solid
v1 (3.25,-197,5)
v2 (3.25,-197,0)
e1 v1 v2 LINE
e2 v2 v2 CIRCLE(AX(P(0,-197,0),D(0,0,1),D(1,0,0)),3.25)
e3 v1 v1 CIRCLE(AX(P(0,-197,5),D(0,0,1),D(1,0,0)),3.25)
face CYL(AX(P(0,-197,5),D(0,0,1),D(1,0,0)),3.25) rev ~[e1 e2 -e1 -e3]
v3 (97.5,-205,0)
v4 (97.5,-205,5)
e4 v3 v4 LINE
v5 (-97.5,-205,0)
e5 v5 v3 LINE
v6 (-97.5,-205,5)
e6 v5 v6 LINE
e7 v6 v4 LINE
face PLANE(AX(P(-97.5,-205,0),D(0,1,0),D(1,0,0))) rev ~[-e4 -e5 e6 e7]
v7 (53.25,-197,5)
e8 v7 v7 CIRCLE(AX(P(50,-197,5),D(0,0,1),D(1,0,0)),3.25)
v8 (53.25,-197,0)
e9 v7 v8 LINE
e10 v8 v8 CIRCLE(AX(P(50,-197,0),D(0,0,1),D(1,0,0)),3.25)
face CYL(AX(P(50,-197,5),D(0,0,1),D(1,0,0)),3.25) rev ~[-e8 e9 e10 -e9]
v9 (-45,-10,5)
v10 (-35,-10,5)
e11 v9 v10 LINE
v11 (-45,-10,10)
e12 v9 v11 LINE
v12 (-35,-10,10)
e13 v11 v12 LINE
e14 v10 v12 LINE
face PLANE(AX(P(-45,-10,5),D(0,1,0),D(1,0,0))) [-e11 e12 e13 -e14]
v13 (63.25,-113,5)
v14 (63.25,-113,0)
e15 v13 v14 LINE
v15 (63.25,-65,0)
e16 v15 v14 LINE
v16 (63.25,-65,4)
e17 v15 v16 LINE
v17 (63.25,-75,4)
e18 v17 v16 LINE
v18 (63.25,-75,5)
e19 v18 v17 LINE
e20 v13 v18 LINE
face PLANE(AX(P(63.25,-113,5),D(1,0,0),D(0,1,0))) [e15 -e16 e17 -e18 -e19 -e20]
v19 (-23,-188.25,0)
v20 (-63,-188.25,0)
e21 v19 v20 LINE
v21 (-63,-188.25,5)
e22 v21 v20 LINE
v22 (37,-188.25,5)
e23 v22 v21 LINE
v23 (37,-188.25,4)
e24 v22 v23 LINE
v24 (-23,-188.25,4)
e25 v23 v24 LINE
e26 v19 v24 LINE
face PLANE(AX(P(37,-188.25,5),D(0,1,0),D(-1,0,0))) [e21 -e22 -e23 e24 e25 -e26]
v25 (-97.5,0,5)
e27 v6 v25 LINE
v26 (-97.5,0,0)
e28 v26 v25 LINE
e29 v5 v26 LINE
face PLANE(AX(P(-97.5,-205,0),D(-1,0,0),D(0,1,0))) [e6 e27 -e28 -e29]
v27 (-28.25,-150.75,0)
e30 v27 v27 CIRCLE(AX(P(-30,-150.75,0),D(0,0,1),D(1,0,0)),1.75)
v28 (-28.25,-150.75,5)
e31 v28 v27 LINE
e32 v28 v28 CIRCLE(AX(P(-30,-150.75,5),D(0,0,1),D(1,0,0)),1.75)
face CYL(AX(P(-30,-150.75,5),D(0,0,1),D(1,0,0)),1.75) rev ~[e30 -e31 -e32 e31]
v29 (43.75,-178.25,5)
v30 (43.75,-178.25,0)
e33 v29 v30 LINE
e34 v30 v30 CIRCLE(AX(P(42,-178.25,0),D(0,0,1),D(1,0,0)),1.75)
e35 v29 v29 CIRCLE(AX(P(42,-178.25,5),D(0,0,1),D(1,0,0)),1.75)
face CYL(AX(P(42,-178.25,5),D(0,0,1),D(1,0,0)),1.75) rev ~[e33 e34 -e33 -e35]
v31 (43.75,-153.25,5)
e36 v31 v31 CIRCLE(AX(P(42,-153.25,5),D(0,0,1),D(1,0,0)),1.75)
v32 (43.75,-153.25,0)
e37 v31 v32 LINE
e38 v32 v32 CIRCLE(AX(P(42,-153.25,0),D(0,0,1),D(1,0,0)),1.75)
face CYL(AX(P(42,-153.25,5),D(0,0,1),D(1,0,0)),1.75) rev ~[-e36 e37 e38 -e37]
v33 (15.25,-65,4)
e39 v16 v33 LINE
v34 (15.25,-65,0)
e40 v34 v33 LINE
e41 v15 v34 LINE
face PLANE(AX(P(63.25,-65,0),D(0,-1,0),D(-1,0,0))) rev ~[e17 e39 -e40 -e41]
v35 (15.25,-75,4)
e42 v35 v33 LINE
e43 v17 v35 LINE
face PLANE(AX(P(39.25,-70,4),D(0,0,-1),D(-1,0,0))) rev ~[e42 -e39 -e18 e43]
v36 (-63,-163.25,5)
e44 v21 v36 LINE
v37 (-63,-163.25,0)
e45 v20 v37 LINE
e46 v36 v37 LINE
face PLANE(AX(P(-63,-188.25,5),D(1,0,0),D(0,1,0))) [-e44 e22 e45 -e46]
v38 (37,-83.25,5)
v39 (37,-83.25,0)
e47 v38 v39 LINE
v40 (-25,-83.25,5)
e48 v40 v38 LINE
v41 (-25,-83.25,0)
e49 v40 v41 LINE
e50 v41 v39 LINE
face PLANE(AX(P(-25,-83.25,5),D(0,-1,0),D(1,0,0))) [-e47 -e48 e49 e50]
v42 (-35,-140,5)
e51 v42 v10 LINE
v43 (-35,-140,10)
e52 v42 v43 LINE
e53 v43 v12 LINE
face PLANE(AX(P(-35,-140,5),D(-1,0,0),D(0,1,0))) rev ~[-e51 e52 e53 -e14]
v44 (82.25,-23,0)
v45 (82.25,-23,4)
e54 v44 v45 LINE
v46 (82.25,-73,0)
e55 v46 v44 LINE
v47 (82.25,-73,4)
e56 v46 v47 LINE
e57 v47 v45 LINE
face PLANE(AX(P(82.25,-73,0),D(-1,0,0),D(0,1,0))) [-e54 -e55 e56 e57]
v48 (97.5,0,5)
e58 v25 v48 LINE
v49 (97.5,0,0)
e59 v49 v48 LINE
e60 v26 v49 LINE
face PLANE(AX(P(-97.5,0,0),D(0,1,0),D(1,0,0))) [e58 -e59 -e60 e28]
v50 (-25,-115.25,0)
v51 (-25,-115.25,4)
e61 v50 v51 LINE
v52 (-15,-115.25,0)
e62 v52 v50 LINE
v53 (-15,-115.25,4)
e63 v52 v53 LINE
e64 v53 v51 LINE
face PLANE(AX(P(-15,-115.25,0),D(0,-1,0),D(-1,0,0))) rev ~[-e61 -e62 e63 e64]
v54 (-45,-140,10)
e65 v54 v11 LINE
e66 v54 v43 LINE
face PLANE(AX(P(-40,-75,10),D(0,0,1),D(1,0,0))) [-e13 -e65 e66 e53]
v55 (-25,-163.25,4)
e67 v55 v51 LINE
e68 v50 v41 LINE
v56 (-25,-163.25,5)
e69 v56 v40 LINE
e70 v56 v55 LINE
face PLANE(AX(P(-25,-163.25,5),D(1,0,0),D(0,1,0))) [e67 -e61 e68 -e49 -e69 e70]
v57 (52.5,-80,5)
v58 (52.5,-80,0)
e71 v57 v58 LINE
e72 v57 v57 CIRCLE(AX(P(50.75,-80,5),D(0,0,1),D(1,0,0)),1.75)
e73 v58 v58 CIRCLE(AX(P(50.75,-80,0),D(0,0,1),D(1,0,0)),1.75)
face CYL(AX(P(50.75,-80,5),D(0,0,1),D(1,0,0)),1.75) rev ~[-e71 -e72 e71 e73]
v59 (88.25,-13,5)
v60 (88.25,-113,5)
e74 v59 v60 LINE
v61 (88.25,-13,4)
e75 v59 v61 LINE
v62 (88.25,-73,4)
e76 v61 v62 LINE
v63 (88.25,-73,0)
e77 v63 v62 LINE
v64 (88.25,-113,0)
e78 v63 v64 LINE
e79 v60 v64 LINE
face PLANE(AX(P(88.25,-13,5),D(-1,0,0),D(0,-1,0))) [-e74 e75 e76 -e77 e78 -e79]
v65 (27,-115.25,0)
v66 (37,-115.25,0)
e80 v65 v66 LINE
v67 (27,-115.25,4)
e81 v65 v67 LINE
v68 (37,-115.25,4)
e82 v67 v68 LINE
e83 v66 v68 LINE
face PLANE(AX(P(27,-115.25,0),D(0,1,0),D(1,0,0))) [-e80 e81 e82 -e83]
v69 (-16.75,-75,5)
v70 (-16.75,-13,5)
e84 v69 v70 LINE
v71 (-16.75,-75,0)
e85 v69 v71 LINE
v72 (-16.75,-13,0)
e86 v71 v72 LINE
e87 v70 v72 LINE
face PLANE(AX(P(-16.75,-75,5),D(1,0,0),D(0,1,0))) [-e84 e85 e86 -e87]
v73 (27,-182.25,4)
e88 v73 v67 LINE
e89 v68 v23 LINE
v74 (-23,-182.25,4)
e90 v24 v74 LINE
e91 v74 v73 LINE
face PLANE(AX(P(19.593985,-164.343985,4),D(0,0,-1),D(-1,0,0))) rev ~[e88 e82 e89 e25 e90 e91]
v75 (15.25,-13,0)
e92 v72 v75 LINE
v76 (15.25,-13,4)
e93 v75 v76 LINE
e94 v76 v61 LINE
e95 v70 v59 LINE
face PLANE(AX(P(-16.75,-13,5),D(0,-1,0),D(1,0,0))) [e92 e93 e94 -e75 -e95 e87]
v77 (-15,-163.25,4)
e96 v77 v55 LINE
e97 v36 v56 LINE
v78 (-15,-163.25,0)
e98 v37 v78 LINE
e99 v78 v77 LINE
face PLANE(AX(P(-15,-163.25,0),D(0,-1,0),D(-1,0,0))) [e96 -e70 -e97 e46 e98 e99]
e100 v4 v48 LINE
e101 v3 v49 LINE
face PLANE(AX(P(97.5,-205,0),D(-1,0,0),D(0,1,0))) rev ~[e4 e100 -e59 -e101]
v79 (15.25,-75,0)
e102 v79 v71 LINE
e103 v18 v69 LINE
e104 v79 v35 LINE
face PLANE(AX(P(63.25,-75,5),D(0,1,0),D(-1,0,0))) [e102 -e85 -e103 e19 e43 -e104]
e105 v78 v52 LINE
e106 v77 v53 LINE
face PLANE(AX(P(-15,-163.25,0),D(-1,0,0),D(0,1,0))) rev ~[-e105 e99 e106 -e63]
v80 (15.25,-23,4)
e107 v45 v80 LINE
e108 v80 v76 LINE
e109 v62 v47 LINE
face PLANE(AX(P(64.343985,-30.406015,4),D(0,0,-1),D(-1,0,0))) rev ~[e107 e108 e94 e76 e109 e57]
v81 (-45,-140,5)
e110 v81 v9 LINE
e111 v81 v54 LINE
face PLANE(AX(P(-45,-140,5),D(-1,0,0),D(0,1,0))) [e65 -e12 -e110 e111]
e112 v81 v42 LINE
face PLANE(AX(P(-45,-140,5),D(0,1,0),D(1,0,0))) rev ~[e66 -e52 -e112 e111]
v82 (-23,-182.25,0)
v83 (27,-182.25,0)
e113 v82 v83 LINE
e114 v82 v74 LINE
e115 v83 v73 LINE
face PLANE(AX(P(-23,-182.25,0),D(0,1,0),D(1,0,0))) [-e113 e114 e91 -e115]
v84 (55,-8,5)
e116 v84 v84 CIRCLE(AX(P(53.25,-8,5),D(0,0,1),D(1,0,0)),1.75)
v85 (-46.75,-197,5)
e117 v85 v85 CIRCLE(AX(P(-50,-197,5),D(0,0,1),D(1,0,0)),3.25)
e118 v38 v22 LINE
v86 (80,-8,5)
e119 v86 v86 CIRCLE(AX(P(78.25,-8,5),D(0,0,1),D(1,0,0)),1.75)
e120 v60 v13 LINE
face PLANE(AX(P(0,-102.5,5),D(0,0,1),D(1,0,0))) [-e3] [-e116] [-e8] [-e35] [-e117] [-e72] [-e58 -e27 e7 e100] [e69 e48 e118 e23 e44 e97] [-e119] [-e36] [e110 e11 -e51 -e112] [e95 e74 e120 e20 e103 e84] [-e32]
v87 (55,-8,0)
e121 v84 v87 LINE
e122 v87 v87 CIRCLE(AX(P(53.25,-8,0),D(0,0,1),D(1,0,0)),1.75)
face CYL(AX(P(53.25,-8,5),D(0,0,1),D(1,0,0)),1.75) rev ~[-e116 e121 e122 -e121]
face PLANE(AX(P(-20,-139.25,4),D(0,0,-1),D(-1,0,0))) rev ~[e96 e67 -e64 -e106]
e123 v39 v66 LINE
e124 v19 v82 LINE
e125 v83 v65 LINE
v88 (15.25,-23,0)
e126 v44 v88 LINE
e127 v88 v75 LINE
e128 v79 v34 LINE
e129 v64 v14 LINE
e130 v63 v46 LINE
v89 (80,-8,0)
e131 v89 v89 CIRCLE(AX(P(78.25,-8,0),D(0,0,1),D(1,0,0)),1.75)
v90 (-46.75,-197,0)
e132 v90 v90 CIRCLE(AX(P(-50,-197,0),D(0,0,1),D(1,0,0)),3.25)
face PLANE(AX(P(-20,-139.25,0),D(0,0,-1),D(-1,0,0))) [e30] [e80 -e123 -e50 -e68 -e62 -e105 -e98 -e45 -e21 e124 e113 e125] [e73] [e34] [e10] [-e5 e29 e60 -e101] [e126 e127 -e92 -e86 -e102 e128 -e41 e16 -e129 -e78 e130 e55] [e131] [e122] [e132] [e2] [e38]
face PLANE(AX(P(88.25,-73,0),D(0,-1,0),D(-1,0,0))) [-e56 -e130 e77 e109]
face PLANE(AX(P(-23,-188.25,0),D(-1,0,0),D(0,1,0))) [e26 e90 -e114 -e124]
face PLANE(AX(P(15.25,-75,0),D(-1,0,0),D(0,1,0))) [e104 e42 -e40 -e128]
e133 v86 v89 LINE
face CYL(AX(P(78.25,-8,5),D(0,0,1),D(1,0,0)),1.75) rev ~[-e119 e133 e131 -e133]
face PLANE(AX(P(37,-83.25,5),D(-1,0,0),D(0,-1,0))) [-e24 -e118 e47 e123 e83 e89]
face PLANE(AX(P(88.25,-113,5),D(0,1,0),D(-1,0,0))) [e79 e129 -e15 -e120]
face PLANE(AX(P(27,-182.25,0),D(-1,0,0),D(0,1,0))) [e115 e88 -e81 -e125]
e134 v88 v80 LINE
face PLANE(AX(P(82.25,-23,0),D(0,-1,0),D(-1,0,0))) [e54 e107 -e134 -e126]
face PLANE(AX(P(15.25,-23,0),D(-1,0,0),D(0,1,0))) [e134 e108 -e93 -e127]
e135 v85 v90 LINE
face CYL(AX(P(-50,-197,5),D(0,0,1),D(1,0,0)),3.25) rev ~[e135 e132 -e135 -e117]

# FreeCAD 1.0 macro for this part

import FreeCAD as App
import Part
import Sketcher

doc = App.newDocument("Part")
params = doc.addObject("Spreadsheet::Sheet", "Params")
for row, (alias, value) in enumerate([
    ("sketch1_width", "195 mm"),
    ("sketch1_height", "205 mm"),
    ("pad1_length", "5 mm"),
    ("sketch2_width", "62 mm"),
    ("sketch2_width2", "38 mm"),
    ("sketch2_width3", "25 mm"),
    ("sketch2_width4", "105 mm"),
    ("sketch3_width", "10 mm"),
    ("sketch3_width2", "50 mm"),
    ("sketch3_width3", "6 mm"),
    ("sketch3_width4", "67 mm"),
    ("sketch3_width5", "48 mm"),
    ("pad2_length", "4 mm"),
    ("sketch4_diameter", "3.5 mm"),
    ("sketch5_diameter", "6.5 mm"),
    ("sketch6_width", "10 mm"),
    ("sketch6_height", "130 mm"),
    ("pad3_length", "5 mm"),
], start=1):
    params.set(f"A{row}", alias)
    params.set(f"B{row}", "=" + value)
    params.setAlias(f"B{row}", alias)

body = doc.addObject("PartDesign::Body", "Body")

sketch1 = doc.addObject("Sketcher::SketchObject", "Sketch")
body.addObject(sketch1)
sketch1.AttachmentSupport = (doc.XY_Plane, [""])
sketch1.MapMode = "FlatFace"
sketch1.addGeometry([
    Part.LineSegment(App.Vector(-98, 0, 0), App.Vector(-98, -205, 0)),
    Part.LineSegment(App.Vector(-98, -205, 0), App.Vector(98, -205, 0)),
    Part.LineSegment(App.Vector(98, -205, 0), App.Vector(98, 0, 0)),
    Part.LineSegment(App.Vector(98, 0, 0), App.Vector(-98, 0, 0)),
], False)
sketch1.addConstraint([
    Sketcher.Constraint("Coincident", 0, 2, 1, 1),
    Sketcher.Constraint("Coincident", 1, 2, 2, 1),
    Sketcher.Constraint("Coincident", 2, 2, 3, 1),
    Sketcher.Constraint("Coincident", 3, 2, 0, 1),
    Sketcher.Constraint("Vertical", 0),
    Sketcher.Constraint("Horizontal", 1),
    Sketcher.Constraint("Vertical", 2),
    Sketcher.Constraint("Horizontal", 3),
    Sketcher.Constraint("Symmetric", 2, 2, 3, 2, -1, 1),
    Sketcher.Constraint("DistanceX", 1, 1, 1, 2, 195.0),
    Sketcher.Constraint("DistanceY", 0, 2, 0, 1, 205.0),
])
sketch1.setExpression("Constraints[9]", "Params.sketch1_width")
sketch1.setExpression("Constraints[10]", "Params.sketch1_height")
pad1 = doc.addObject("PartDesign::Pad", "Pad")
body.addObject(pad1)
pad1.Profile = sketch1
pad1.setExpression("Length", "Params.pad1_length")

sketch2 = doc.addObject("Sketcher::SketchObject", "Sketch001")
body.addObject(sketch2)
sketch2.AttachmentSupport = (doc.XY_Plane, [""])
sketch2.MapMode = "FlatFace"
sketch2.AttachmentOffset = App.Placement(App.Vector(0, 0, 5), App.Rotation())
sketch2.addGeometry([
    Part.LineSegment(App.Vector(37, -83, 0), App.Vector(-25, -83, 0)),
    Part.LineSegment(App.Vector(-25, -83, 0), App.Vector(-25, -163, 0)),
    Part.LineSegment(App.Vector(-25, -163, 0), App.Vector(-63, -163, 0)),
    Part.LineSegment(App.Vector(-63, -163, 0), App.Vector(-63, -188, 0)),
    Part.LineSegment(App.Vector(-63, -188, 0), App.Vector(37, -188, 0)),
    Part.LineSegment(App.Vector(37, -188, 0), App.Vector(37, -83, 0)),
    Part.LineSegment(App.Vector(63, -113, 0), App.Vector(88, -113, 0)),
    Part.LineSegment(App.Vector(88, -113, 0), App.Vector(88, -13, 0)),
    Part.LineSegment(App.Vector(88, -13, 0), App.Vector(-17, -13, 0)),
    Part.LineSegment(App.Vector(-17, -13, 0), App.Vector(-17, -75, 0)),
    Part.LineSegment(App.Vector(-17, -75, 0), App.Vector(63, -75, 0)),
    Part.LineSegment(App.Vector(63, -75, 0), App.Vector(63, -113, 0)),
], False)
sketch2.addConstraint([
    Sketcher.Constraint("Coincident", 0, 2, 1, 1),
    Sketcher.Constraint("Coincident", 1, 2, 2, 1),
    Sketcher.Constraint("Coincident", 2, 2, 3, 1),
    Sketcher.Constraint("Coincident", 3, 2, 4, 1),
    Sketcher.Constraint("Coincident", 4, 2, 5, 1),
    Sketcher.Constraint("Coincident", 5, 2, 0, 1),
    Sketcher.Constraint("Coincident", 6, 2, 7, 1),
    Sketcher.Constraint("Coincident", 7, 2, 8, 1),
    Sketcher.Constraint("Coincident", 8, 2, 9, 1),
    Sketcher.Constraint("Coincident", 9, 2, 10, 1),
    Sketcher.Constraint("Coincident", 10, 2, 11, 1),
    Sketcher.Constraint("Coincident", 11, 2, 6, 1),
    Sketcher.Constraint("Horizontal", 0),
    Sketcher.Constraint("Vertical", 1),
    Sketcher.Constraint("Horizontal", 2),
    Sketcher.Constraint("Vertical", 3),
    Sketcher.Constraint("Horizontal", 4),
    Sketcher.Constraint("Vertical", 5),
    Sketcher.Constraint("Horizontal", 6),
    Sketcher.Constraint("Vertical", 7),
    Sketcher.Constraint("Horizontal", 8),
    Sketcher.Constraint("Vertical", 9),
    Sketcher.Constraint("Horizontal", 10),
    Sketcher.Constraint("Vertical", 11),
    Sketcher.Constraint("Equal", 10, 1),
    Sketcher.Constraint("Equal", 6, 3),
    Sketcher.Constraint("Equal", 4, 7),
    Sketcher.Constraint("Equal", 0, 9),
    Sketcher.Constraint("DistanceX", 0, 2, 0, 1, 62.0),
    Sketcher.Constraint("DistanceX", 2, 2, 2, 1, 38.0),
    Sketcher.Constraint("DistanceX", 6, 1, 6, 2, 25.0),
    Sketcher.Constraint("DistanceX", 8, 2, 8, 1, 105.0),
    Sketcher.Constraint("DistanceX", 0, 2, -1, 1, 25.0),
    Sketcher.Constraint("DistanceY", 6, 2, -1, 1, 113.0),
    Sketcher.Constraint("DistanceY", 0, 2, -1, 1, 83.25),
    Sketcher.Constraint("DistanceX", -1, 1, 6, 2, 88.25),
])
sketch2.setExpression("Constraints[28]", "Params.sketch2_width")
sketch2.setExpression("Constraints[29]", "Params.sketch2_width2")
sketch2.setExpression("Constraints[30]", "Params.sketch2_width3")
sketch2.setExpression("Constraints[31]", "Params.sketch2_width4")
pocket1 = doc.addObject("PartDesign::Pocket", "Pocket")
body.addObject(pocket1)
pocket1.Profile = sketch2
pocket1.Type = "ThroughAll"

sketch3 = doc.addObject("Sketcher::SketchObject", "Sketch002")
body.addObject(sketch3)
sketch3.AttachmentSupport = (doc.XY_Plane, [""])
sketch3.MapMode = "FlatFace"
sketch3.addGeometry([
    Part.LineSegment(App.Vector(-15, -115, 0), App.Vector(-15, -163, 0)),
    Part.LineSegment(App.Vector(-15, -163, 0), App.Vector(-25, -163, 0)),
    Part.LineSegment(App.Vector(-25, -163, 0), App.Vector(-25, -115, 0)),
    Part.LineSegment(App.Vector(-25, -115, 0), App.Vector(-15, -115, 0)),
    Part.LineSegment(App.Vector(-23, -188, 0), App.Vector(-23, -182, 0)),
    Part.LineSegment(App.Vector(-23, -182, 0), App.Vector(27, -182, 0)),
    Part.LineSegment(App.Vector(27, -182, 0), App.Vector(27, -115, 0)),
    Part.LineSegment(App.Vector(27, -115, 0), App.Vector(37, -115, 0)),
    Part.LineSegment(App.Vector(37, -115, 0), App.Vector(37, -188, 0)),
    Part.LineSegment(App.Vector(37, -188, 0), App.Vector(-23, -188, 0)),
    Part.LineSegment(App.Vector(88, -73, 0), App.Vector(82, -73, 0)),
    Part.LineSegment(App.Vector(82, -73, 0), App.Vector(82, -23, 0)),
    Part.LineSegment(App.Vector(82, -23, 0), App.Vector(15, -23, 0)),
    Part.LineSegment(App.Vector(15, -23, 0), App.Vector(15, -13, 0)),
    Part.LineSegment(App.Vector(15, -13, 0), App.Vector(88, -13, 0)),
    Part.LineSegment(App.Vector(88, -13, 0), App.Vector(88, -73, 0)),
    Part.LineSegment(App.Vector(63, -65, 0), App.Vector(63, -75, 0)),
    Part.LineSegment(App.Vector(63, -75, 0), App.Vector(15, -75, 0)),
    Part.LineSegment(App.Vector(15, -75, 0), App.Vector(15, -65, 0)),
    Part.LineSegment(App.Vector(15, -65, 0), App.Vector(63, -65, 0)),
], False)
sketch3.addConstraint([
    Sketcher.Constraint("Coincident", 0, 2, 1, 1),
    Sketcher.Constraint("Coincident", 1, 2, 2, 1),
    Sketcher.Constraint("Coincident", 2, 2, 3, 1),
    Sketcher.Constraint("Coincident", 3, 2, 0, 1),
    Sketcher.Constraint("Coincident", 4, 2, 5, 1),
    Sketcher.Constraint("Coincident", 5, 2, 6, 1),
    Sketcher.Constraint("Coincident", 6, 2, 7, 1),
    Sketcher.Constraint("Coincident", 7, 2, 8, 1),
    Sketcher.Constraint("Coincident", 8, 2, 9, 1),
    Sketcher.Constraint("Coincident", 9, 2, 4, 1),
    Sketcher.Constraint("Coincident", 10, 2, 11, 1),
    Sketcher.Constraint("Coincident", 11, 2, 12, 1),
    Sketcher.Constraint("Coincident", 12, 2, 13, 1),
    Sketcher.Constraint("Coincident", 13, 2, 14, 1),
    Sketcher.Constraint("Coincident", 14, 2, 15, 1),
    Sketcher.Constraint("Coincident", 15, 2, 10, 1),
    Sketcher.Constraint("Coincident", 16, 2, 17, 1),
    Sketcher.Constraint("Coincident", 17, 2, 18, 1),
    Sketcher.Constraint("Coincident", 18, 2, 19, 1),
    Sketcher.Constraint("Coincident", 19, 2, 16, 1),
    Sketcher.Constraint("Vertical", 0),
    Sketcher.Constraint("Horizontal", 1),
    Sketcher.Constraint("Vertical", 2),
    Sketcher.Constraint("Horizontal", 3),
    Sketcher.Constraint("Vertical", 4),
    Sketcher.Constraint("Horizontal", 5),
    Sketcher.Constraint("Vertical", 6),
    Sketcher.Constraint("Horizontal", 7),
    Sketcher.Constraint("Vertical", 8),
    Sketcher.Constraint("Horizontal", 9),
    Sketcher.Constraint("Horizontal", 10),
    Sketcher.Constraint("Vertical", 11),
    Sketcher.Constraint("Horizontal", 12),
    Sketcher.Constraint("Vertical", 13),
    Sketcher.Constraint("Horizontal", 14),
    Sketcher.Constraint("Vertical", 15),
    Sketcher.Constraint("Vertical", 16),
    Sketcher.Constraint("Horizontal", 17),
    Sketcher.Constraint("Vertical", 18),
    Sketcher.Constraint("Horizontal", 19),
    Sketcher.Constraint("Horizontal", 3, 2, 6, 2),
    Sketcher.Constraint("Vertical", 13, 2, 17, 2),
    Sketcher.Constraint("Equal", 3, 7),
    Sketcher.Constraint("Equal", 19, 0),
    Sketcher.Constraint("Equal", 10, 4),
    Sketcher.Constraint("Equal", 12, 6),
    Sketcher.Constraint("Equal", 5, 11),
    Sketcher.Constraint("Equal", 7, 13),
    Sketcher.Constraint("Equal", 13, 16),
    Sketcher.Constraint("DistanceX", 1, 2, 1, 1, 10.0),
    Sketcher.Constraint("DistanceX", 5, 1, 5, 2, 50.0),
    Sketcher.Constraint("DistanceX", 10, 2, 10, 1, 6.0),
    Sketcher.Constraint("DistanceX", 12, 2, 12, 1, 67.0),
    Sketcher.Constraint("DistanceX", 17, 2, 17, 1, 48.0),
    Sketcher.Constraint("DistanceX", 0, 2, -1, 1, 15.0),
    Sketcher.Constraint("DistanceX", 4, 2, -1, 1, 23.0),
    Sketcher.Constraint("DistanceY", 10, 2, -1, 1, 73.0),
    Sketcher.Constraint("DistanceY", 16, 2, -1, 1, 75.0),
    Sketcher.Constraint("DistanceY", 0, 2, -1, 1, 163.25),
    Sketcher.Constraint("DistanceX", -1, 1, 10, 2, 82.25),
])
sketch3.setExpression("Constraints[49]", "Params.sketch3_width")
sketch3.setExpression("Constraints[50]", "Params.sketch3_width2")
sketch3.setExpression("Constraints[51]", "Params.sketch3_width3")
sketch3.setExpression("Constraints[52]", "Params.sketch3_width4")
sketch3.setExpression("Constraints[53]", "Params.sketch3_width5")
pad2 = doc.addObject("PartDesign::Pad", "Pad001")
body.addObject(pad2)
pad2.Profile = sketch3
pad2.setExpression("Length", "Params.pad2_length")

sketch4 = doc.addObject("Sketcher::SketchObject", "Sketch003")
body.addObject(sketch4)
sketch4.AttachmentSupport = (doc.XY_Plane, [""])
sketch4.MapMode = "FlatFace"
sketch4.AttachmentOffset = App.Placement(App.Vector(0, 0, 5), App.Rotation())
sketch4.addGeometry([
    Part.Circle(App.Vector(42, -153.2, 0), App.Vector(0, 0, 1), 1.8),
    Part.Circle(App.Vector(42, -178.2, 0), App.Vector(0, 0, 1), 1.8),
    Part.Circle(App.Vector(-30, -150.8, 0), App.Vector(0, 0, 1), 1.8),
    Part.Circle(App.Vector(50.8, -80, 0), App.Vector(0, 0, 1), 1.8),
    Part.Circle(App.Vector(53.2, -8, 0), App.Vector(0, 0, 1), 1.8),
    Part.Circle(App.Vector(78.2, -8, 0), App.Vector(0, 0, 1), 1.8),
], False)
sketch4.addConstraint([
    Sketcher.Constraint("Equal", 0, 1),
    Sketcher.Constraint("Equal", 1, 2),
    Sketcher.Constraint("Equal", 2, 3),
    Sketcher.Constraint("Equal", 3, 4),
    Sketcher.Constraint("Equal", 4, 5),
    Sketcher.Constraint("Horizontal", 4, 3, 5, 3),
    Sketcher.Constraint("Vertical", 0, 3, 1, 3),
    Sketcher.Constraint("Diameter", 0, 3.5),
    Sketcher.Constraint("DistanceX", -1, 1, 0, 3, 42.0),
    Sketcher.Constraint("DistanceX", 2, 3, -1, 1, 30.0),
    Sketcher.Constraint("DistanceY", 3, 3, -1, 1, 80.0),
    Sketcher.Constraint("DistanceY", 4, 3, -1, 1, 8.0),
    Sketcher.Constraint("DistanceY", 1, 3, 0, 3, 25.0),
    Sketcher.Constraint("DistanceX", 4, 3, 5, 3, 25.0),
    Sketcher.Constraint("DistanceY", 0, 3, 2, 3, 2.5),
    Sketcher.Constraint("DistanceX", 3, 3, 4, 3, 2.5),
    Sketcher.Constraint("DistanceY", 0, 3, -1, 1, 153.25),
    Sketcher.Constraint("DistanceX", -1, 1, 3, 3, 50.75),
])
sketch4.setExpression("Constraints[7]", "Params.sketch4_diameter")
pocket2 = doc.addObject("PartDesign::Pocket", "Pocket001")
body.addObject(pocket2)
pocket2.Profile = sketch4
pocket2.Type = "ThroughAll"

sketch5 = doc.addObject("Sketcher::SketchObject", "Sketch004")
body.addObject(sketch5)
sketch5.AttachmentSupport = (doc.XY_Plane, [""])
sketch5.MapMode = "FlatFace"
sketch5.AttachmentOffset = App.Placement(App.Vector(0, 0, 5), App.Rotation())
sketch5.addGeometry([
    Part.Circle(App.Vector(-50, -197, 0), App.Vector(0, 0, 1), 3.2),
    Part.Circle(App.Vector(50, -197, 0), App.Vector(0, 0, 1), 3.2),
    Part.Circle(App.Vector(0, -197, 0), App.Vector(0, 0, 1), 3.2),
], False)
sketch5.addConstraint([
    Sketcher.Constraint("Equal", 0, 1),
    Sketcher.Constraint("Equal", 1, 2),
    Sketcher.Constraint("Symmetric", 0, 3, 1, 3, -2),
    Sketcher.Constraint("PointOnObject", 2, 3, -2),
    Sketcher.Constraint("Horizontal", 1, 3, 2, 3),
    Sketcher.Constraint("Diameter", 0, 6.5),
    Sketcher.Constraint("DistanceX", 0, 3, -1, 1, 50.0),
    Sketcher.Constraint("DistanceY", 0, 3, -1, 1, 197.0),
])
sketch5.setExpression("Constraints[5]", "Params.sketch5_diameter")
pocket3 = doc.addObject("PartDesign::Pocket", "Pocket002")
body.addObject(pocket3)
pocket3.Profile = sketch5
pocket3.Type = "ThroughAll"

sketch6 = doc.addObject("Sketcher::SketchObject", "Sketch005")
body.addObject(sketch6)
sketch6.AttachmentSupport = (doc.XY_Plane, [""])
sketch6.MapMode = "FlatFace"
sketch6.AttachmentOffset = App.Placement(App.Vector(0, 0, 5), App.Rotation())
sketch6.addGeometry([
    Part.LineSegment(App.Vector(-45, -10, 0), App.Vector(-45, -140, 0)),
    Part.LineSegment(App.Vector(-45, -140, 0), App.Vector(-35, -140, 0)),
    Part.LineSegment(App.Vector(-35, -140, 0), App.Vector(-35, -10, 0)),
    Part.LineSegment(App.Vector(-35, -10, 0), App.Vector(-45, -10, 0)),
], False)
sketch6.addConstraint([
    Sketcher.Constraint("Coincident", 0, 2, 1, 1),
    Sketcher.Constraint("Coincident", 1, 2, 2, 1),
    Sketcher.Constraint("Coincident", 2, 2, 3, 1),
    Sketcher.Constraint("Coincident", 3, 2, 0, 1),
    Sketcher.Constraint("Vertical", 0),
    Sketcher.Constraint("Horizontal", 1),
    Sketcher.Constraint("Vertical", 2),
    Sketcher.Constraint("Horizontal", 3),
    Sketcher.Constraint("DistanceX", 1, 1, 1, 2, 10.0),
    Sketcher.Constraint("DistanceY", 0, 2, 0, 1, 130.0),
    Sketcher.Constraint("DistanceX", 0, 2, -1, 1, 45.0),
    Sketcher.Constraint("DistanceY", 0, 2, -1, 1, 140.0),
])
sketch6.setExpression("Constraints[8]", "Params.sketch6_width")
sketch6.setExpression("Constraints[9]", "Params.sketch6_height")
pad3 = doc.addObject("PartDesign::Pad", "Pad002")
body.addObject(pad3)
pad3.Profile = sketch6
pad3.setExpression("Length", "Params.pad3_length")

doc.recompute()
